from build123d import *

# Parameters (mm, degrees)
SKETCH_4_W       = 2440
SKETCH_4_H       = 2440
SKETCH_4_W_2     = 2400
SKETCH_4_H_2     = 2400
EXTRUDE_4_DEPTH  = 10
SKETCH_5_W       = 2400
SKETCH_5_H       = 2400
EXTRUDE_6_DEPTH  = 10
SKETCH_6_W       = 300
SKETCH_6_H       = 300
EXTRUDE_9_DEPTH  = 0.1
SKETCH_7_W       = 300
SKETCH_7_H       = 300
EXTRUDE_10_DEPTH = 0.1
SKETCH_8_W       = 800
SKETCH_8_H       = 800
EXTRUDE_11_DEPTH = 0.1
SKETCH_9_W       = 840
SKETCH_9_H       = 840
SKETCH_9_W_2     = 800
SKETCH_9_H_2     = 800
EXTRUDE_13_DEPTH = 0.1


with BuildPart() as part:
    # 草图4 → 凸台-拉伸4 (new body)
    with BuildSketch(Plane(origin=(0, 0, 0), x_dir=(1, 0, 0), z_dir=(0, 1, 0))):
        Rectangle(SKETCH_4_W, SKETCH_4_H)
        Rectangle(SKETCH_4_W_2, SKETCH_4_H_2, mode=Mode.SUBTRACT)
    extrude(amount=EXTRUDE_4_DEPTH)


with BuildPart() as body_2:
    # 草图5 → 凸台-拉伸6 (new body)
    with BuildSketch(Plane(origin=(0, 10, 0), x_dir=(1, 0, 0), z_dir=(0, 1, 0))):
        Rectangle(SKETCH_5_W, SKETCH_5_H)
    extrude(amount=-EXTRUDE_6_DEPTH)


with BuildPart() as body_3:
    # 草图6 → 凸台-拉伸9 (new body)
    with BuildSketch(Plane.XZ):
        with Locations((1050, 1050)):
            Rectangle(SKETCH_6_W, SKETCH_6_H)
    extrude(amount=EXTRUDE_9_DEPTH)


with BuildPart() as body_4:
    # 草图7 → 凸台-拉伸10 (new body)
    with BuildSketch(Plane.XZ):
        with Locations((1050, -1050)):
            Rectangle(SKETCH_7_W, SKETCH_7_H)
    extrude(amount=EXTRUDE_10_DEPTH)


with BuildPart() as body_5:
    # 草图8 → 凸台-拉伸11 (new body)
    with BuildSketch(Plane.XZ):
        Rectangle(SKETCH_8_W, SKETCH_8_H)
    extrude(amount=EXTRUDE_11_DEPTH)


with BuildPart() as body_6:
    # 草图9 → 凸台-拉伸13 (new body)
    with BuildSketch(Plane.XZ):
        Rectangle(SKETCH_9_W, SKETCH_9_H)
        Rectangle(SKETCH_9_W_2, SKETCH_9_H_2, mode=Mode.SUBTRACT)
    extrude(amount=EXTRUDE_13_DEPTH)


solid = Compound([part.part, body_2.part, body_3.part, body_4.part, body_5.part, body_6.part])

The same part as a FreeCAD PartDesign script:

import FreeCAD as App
import Part
import Sketcher
Q = App.Units.Quantity


def add_polygon(sketch, points):
    """Adds a closed chain of lines whose ends are joined by coincident constraints."""
    first, n = sketch.GeometryCount, len(points)
    for a, b in zip(points, points[1:] + points[:1]):
        sketch.addGeometry(Part.LineSegment(App.Vector(*a, 0), App.Vector(*b, 0)), False)
    for i in range(n):
        sketch.addConstraint(Sketcher.Constraint("Coincident", first + i, 2, first + (i + 1) % n, 1))

doc = App.newDocument("Part")
params = doc.addObject("Spreadsheet::Sheet", "Params")
for row, (alias, value) in enumerate([
    ("sketch1_width", "2440 mm"),
    ("sketch1_width2", "2400 mm"),
    ("pad1_length", "10 mm"),
    ("sketch2_width", "2400 mm"),
    ("pad2_length", "10 mm"),
    ("sketch3_width", "300 mm"),
    ("pad3_length", "0.1 mm"),
    ("sketch4_width", "300 mm"),
    ("pad4_length", "0.1 mm"),
    ("sketch5_width", "800 mm"),
    ("pad5_length", "0.1 mm"),
    ("sketch6_width", "840 mm"),
    ("sketch6_width2", "800 mm"),
    ("pad6_length", "0.1 mm"),
], start=1):
    params.set(f"A{row}", alias)
    params.set(f"B{row}", "=" + value)
    params.setAlias(f"B{row}", alias)

body = doc.addObject("PartDesign::Body", "Body")

# Sketch on XZ plane
sketch1 = body.newObject("Sketcher::SketchObject", "Sketch")
sketch1.AttachmentSupport = (doc.getObject("XZ_Plane"), [""])
sketch1.MapMode = "FlatFace"
add_polygon(sketch1, [(-1220, -1220), (-1220, 1220), (1220, 1220), (1220, -1220)])  # lines 0-3
add_polygon(sketch1, [(1200, 1200), (-1200, 1200), (-1200, -1200), (1200, -1200)])  # lines 4-7
sketch1.addConstraint([
    Sketcher.Constraint("Vertical", 0),
    Sketcher.Constraint("Horizontal", 1),
    Sketcher.Constraint("Vertical", 2),
    Sketcher.Constraint("Horizontal", 3),
    Sketcher.Constraint("Horizontal", 4),
    Sketcher.Constraint("Vertical", 5),
    Sketcher.Constraint("Horizontal", 6),
    Sketcher.Constraint("Vertical", 7),
    Sketcher.Constraint("Symmetric", 0, 2, 2, 2, -1, 1),
    Sketcher.Constraint("Symmetric", 4, 2, 6, 2, -1, 1),
    Sketcher.Constraint("Equal", 3, 0),
    Sketcher.Constraint("Equal", 6, 5),
    Sketcher.Constraint("DistanceX", 1, 1, 1, 2, Q("2440 mm")),
    Sketcher.Constraint("DistanceX", 4, 2, 4, 1, Q("2400 mm")),
])
sketch1.setExpression("Constraints[20]", "Params.sketch1_width")
sketch1.setExpression("Constraints[21]", "Params.sketch1_width2")
pad1 = body.newObject("PartDesign::Pad", "Pad")
pad1.Profile = sketch1
pad1.setExpression("Length", "Params.pad1_length")
pad1.Reversed = True
body2 = doc.addObject("PartDesign::Body", "Body001")

# Sketch on XZ plane
sketch2 = body2.newObject("Sketcher::SketchObject", "Sketch001")
sketch2.AttachmentSupport = (doc.getObject("XZ_Plane001"), [""])
sketch2.MapMode = "FlatFace"
sketch2.AttachmentOffset = App.Placement(App.Vector(0, 0, -10), App.Rotation())
add_polygon(sketch2, [(-1200, -1200), (-1200, 1200), (1200, 1200), (1200, -1200)])  # lines 0-3
sketch2.addConstraint([
    Sketcher.Constraint("Vertical", 0),
    Sketcher.Constraint("Horizontal", 1),
    Sketcher.Constraint("Vertical", 2),
    Sketcher.Constraint("Horizontal", 3),
    Sketcher.Constraint("Symmetric", 0, 2, 2, 2, -1, 1),
    Sketcher.Constraint("Equal", 3, 0),
    Sketcher.Constraint("DistanceX", 1, 1, 1, 2, Q("2400 mm")),
])
sketch2.setExpression("Constraints[10]", "Params.sketch2_width")
pad2 = body2.newObject("PartDesign::Pad", "Pad001")
pad2.Profile = sketch2
pad2.setExpression("Length", "Params.pad2_length")
body3 = doc.addObject("PartDesign::Body", "Body002")

# Sketch on XZ plane
sketch3 = body3.newObject("Sketcher::SketchObject", "Sketch002")
sketch3.AttachmentSupport = (doc.getObject("XZ_Plane002"), [""])
sketch3.MapMode = "FlatFace"
add_polygon(sketch3, [(900, 1200), (900, 900), (1200, 900), (1200, 1200)])  # lines 0-3
sketch3.addConstraint([
    Sketcher.Constraint("Vertical", 0),
    Sketcher.Constraint("Horizontal", 1),
    Sketcher.Constraint("Vertical", 2),
    Sketcher.Constraint("Horizontal", 3),
    Sketcher.Constraint("Equal", 3, 0),
    Sketcher.Constraint("DistanceX", 1, 1, 1, 2, Q("300 mm")),
    Sketcher.Constraint("DistanceX", -1, 1, 0, 2, Q("900 mm")),
    Sketcher.Constraint("DistanceY", -1, 1, 0, 2, Q("900 mm")),
])
sketch3.setExpression("Constraints[9]", "Params.sketch3_width")
pad3 = body3.newObject("PartDesign::Pad", "Pad002")
pad3.Profile = sketch3
pad3.setExpression("Length", "Params.pad3_length")
body4 = doc.addObject("PartDesign::Body", "Body003")

# Sketch on XZ plane
sketch4 = body4.newObject("Sketcher::SketchObject", "Sketch003")
sketch4.AttachmentSupport = (doc.getObject("XZ_Plane003"), [""])
sketch4.MapMode = "FlatFace"
add_polygon(sketch4, [(900, -900), (900, -1200), (1200, -1200), (1200, -900)])  # lines 0-3
sketch4.addConstraint([
    Sketcher.Constraint("Vertical", 0),
    Sketcher.Constraint("Horizontal", 1),
    Sketcher.Constraint("Vertical", 2),
    Sketcher.Constraint("Horizontal", 3),
    Sketcher.Constraint("Equal", 3, 0),
    Sketcher.Constraint("DistanceX", 1, 1, 1, 2, Q("300 mm")),
    Sketcher.Constraint("DistanceX", -1, 1, 0, 2, Q("900 mm")),
    Sketcher.Constraint("DistanceY", 0, 2, -1, 1, Q("1200 mm")),
])
sketch4.setExpression("Constraints[9]", "Params.sketch4_width")
pad4 = body4.newObject("PartDesign::Pad", "Pad003")
pad4.Profile = sketch4
pad4.setExpression("Length", "Params.pad4_length")
body5 = doc.addObject("PartDesign::Body", "Body004")

# Sketch on XZ plane
sketch5 = body5.newObject("Sketcher::SketchObject", "Sketch004")
sketch5.AttachmentSupport = (doc.getObject("XZ_Plane004"), [""])
sketch5.MapMode = "FlatFace"
add_polygon(sketch5, [(-400, 400), (-400, -400), (400, -400), (400, 400)])  # lines 0-3
sketch5.addConstraint([
    Sketcher.Constraint("Vertical", 0),
    Sketcher.Constraint("Horizontal", 1),
    Sketcher.Constraint("Vertical", 2),
    Sketcher.Constraint("Horizontal", 3),
    Sketcher.Constraint("Symmetric", 0, 2, 2, 2, -1, 1),
    Sketcher.Constraint("Equal", 3, 0),
    Sketcher.Constraint("DistanceX", 1, 1, 1, 2, Q("800 mm")),
])
sketch5.setExpression("Constraints[10]", "Params.sketch5_width")
pad5 = body5.newObject("PartDesign::Pad", "Pad004")
pad5.Profile = sketch5
pad5.setExpression("Length", "Params.pad5_length")
body6 = doc.addObject("PartDesign::Body", "Body005")

# Sketch on XZ plane
sketch6 = body6.newObject("Sketcher::SketchObject", "Sketch005")
sketch6.AttachmentSupport = (doc.getObject("XZ_Plane005"), [""])
sketch6.MapMode = "FlatFace"
add_polygon(sketch6, [(-420, 420), (-420, -420), (420, -420), (420, 420)])  # lines 0-3
add_polygon(sketch6, [(400, -400), (-400, -400), (-400, 400), (400, 400)])  # lines 4-7
sketch6.addConstraint([
    Sketcher.Constraint("Vertical", 0),
    Sketcher.Constraint("Horizontal", 1),
    Sketcher.Constraint("Vertical", 2),
    Sketcher.Constraint("Horizontal", 3),
    Sketcher.Constraint("Horizontal", 4),
    Sketcher.Constraint("Vertical", 5),
    Sketcher.Constraint("Horizontal", 6),
    Sketcher.Constraint("Vertical", 7),
    Sketcher.Constraint("Symmetric", 0, 2, 2, 2, -1, 1),
    Sketcher.Constraint("Symmetric", 4, 2, 6, 2, -1, 1),
    Sketcher.Constraint("Equal", 3, 0),
    Sketcher.Constraint("Equal", 6, 5),
    Sketcher.Constraint("DistanceX", 1, 1, 1, 2, Q("840 mm")),
    Sketcher.Constraint("DistanceX", 4, 2, 4, 1, Q("800 mm")),
])
sketch6.setExpression("Constraints[20]", "Params.sketch6_width")
sketch6.setExpression("Constraints[21]", "Params.sketch6_width2")
pad6 = body6.newObject("PartDesign::Pad", "Pad005")
pad6.Profile = sketch6
pad6.setExpression("Length", "Params.pad6_length")

doc.recompute()
